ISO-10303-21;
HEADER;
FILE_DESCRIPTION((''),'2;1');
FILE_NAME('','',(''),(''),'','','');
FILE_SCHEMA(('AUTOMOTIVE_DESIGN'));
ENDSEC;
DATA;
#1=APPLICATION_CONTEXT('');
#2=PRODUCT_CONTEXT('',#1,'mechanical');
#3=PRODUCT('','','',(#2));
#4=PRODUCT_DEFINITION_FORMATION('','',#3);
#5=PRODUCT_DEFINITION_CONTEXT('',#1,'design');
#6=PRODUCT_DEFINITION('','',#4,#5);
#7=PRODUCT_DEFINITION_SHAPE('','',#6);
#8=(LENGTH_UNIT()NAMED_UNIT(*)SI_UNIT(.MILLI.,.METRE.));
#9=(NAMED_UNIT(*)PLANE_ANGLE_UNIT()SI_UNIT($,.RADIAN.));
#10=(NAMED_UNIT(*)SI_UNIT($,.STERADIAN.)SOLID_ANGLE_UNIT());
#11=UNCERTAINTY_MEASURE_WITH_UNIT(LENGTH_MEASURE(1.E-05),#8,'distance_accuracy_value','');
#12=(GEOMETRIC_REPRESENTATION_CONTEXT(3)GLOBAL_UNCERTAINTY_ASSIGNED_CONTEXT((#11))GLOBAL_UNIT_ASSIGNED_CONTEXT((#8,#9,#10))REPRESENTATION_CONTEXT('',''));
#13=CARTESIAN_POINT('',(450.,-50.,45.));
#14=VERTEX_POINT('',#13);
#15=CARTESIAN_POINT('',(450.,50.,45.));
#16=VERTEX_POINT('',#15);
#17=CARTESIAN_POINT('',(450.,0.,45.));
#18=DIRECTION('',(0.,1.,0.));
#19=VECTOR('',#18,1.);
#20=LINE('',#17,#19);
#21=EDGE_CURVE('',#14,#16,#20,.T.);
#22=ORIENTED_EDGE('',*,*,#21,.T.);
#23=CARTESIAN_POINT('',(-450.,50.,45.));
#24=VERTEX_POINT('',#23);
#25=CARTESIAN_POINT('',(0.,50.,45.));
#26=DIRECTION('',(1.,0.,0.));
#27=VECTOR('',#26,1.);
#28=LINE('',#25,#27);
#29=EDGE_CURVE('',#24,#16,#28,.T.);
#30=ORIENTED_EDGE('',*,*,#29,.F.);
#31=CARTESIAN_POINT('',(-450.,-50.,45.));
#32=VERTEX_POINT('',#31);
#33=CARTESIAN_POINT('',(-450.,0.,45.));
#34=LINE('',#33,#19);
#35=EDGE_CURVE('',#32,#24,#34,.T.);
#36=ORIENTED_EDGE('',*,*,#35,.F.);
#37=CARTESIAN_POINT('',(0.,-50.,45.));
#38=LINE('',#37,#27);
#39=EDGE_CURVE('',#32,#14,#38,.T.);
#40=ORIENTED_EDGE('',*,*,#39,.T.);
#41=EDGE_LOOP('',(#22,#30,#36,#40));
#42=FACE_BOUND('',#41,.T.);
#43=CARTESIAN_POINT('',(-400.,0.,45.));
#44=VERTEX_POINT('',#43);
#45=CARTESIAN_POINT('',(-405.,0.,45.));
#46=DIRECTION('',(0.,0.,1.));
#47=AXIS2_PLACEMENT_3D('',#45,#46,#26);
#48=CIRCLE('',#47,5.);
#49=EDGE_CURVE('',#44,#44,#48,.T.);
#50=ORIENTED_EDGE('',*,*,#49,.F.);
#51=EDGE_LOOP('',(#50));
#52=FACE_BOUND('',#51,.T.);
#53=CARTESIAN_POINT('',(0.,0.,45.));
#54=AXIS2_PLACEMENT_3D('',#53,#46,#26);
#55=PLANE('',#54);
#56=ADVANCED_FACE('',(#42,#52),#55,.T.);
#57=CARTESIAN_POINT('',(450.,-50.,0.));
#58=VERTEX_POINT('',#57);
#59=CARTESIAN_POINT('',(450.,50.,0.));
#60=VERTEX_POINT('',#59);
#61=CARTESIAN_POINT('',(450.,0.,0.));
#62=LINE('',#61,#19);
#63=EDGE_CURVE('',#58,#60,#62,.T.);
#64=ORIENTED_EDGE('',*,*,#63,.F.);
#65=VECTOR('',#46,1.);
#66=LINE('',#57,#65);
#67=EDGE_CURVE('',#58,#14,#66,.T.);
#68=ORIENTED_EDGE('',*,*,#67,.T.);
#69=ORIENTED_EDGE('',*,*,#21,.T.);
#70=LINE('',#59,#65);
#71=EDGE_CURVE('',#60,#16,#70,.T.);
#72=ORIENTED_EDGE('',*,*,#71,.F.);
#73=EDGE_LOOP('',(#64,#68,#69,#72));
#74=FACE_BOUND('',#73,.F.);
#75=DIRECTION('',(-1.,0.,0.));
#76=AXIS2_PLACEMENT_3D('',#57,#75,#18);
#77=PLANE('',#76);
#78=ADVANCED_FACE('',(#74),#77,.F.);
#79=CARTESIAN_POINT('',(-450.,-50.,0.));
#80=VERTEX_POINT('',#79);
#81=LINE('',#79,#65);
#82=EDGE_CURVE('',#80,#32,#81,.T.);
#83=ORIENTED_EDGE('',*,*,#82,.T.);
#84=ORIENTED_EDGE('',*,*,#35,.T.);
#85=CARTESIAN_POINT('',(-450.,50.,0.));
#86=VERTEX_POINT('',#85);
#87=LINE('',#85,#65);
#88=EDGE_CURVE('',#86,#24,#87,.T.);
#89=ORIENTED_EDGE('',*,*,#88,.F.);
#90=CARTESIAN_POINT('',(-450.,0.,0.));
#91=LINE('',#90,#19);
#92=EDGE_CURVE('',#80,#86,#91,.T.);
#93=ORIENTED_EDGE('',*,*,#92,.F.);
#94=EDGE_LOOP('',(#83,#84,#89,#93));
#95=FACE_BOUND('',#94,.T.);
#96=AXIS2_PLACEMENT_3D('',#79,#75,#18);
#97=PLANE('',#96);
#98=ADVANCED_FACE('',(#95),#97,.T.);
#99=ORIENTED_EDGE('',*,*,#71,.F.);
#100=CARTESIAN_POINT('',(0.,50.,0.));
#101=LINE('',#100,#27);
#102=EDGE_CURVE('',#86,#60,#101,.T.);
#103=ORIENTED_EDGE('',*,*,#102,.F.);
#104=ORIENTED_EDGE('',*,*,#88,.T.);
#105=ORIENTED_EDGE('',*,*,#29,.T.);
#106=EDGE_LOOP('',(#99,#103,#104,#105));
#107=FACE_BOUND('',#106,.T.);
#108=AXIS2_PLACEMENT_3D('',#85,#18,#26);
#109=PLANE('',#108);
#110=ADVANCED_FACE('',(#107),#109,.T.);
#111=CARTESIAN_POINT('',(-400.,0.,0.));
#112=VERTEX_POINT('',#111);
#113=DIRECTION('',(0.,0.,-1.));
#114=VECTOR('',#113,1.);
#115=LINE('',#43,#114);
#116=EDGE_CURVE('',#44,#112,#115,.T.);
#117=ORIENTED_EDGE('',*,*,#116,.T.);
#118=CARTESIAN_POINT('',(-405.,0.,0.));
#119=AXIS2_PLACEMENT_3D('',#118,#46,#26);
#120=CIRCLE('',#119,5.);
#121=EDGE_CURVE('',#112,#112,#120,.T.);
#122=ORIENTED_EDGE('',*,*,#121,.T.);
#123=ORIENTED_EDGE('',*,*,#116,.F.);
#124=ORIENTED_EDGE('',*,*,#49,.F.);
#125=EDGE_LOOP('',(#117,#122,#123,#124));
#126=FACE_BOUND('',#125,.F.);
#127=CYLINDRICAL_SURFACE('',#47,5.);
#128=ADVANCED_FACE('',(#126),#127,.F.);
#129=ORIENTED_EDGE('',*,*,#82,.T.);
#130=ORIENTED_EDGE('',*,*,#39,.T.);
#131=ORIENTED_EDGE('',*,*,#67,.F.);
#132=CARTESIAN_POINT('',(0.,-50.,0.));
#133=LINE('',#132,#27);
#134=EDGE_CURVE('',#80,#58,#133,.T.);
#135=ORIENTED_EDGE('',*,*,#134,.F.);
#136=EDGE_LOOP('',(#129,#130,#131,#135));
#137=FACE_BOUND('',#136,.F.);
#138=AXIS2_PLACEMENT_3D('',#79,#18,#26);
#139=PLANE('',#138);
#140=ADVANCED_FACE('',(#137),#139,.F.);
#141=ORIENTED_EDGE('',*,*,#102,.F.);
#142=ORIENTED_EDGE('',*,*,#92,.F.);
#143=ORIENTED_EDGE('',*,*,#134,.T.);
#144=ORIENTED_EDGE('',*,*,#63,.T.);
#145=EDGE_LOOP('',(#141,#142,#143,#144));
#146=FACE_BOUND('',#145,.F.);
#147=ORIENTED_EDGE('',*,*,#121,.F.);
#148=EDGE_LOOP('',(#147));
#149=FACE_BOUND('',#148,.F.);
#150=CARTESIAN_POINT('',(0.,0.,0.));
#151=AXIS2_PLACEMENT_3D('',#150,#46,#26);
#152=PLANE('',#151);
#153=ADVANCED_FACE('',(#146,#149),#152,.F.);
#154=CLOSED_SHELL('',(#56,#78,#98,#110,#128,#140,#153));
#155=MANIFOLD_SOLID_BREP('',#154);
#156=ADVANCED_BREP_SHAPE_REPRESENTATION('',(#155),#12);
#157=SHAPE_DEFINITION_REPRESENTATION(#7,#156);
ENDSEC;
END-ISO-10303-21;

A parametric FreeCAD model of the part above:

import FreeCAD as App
import Part
import Sketcher
from FreeCAD import Vector


def add_polygon(sketch, points):
    """Adds a closed chain of lines whose ends are joined by coincident constraints."""
    first, n = sketch.GeometryCount, len(points)
    for a, b in zip(points, points[1:] + points[:1]):
        sketch.addGeometry(Part.LineSegment(App.Vector(*a, 0), App.Vector(*b, 0)), False)
    for i in range(n):
        sketch.addConstraint(Sketcher.Constraint("Coincident", first + i, 2, first + (i + 1) % n, 1))

doc = App.newDocument("Part")
body = doc.addObject("PartDesign::Body", "Body")

# Sketch on XY plane
sketch1 = body.newObject("Sketcher::SketchObject", "Sketch")
sketch1.AttachmentSupport = (doc.getObject("XY_Plane"), [""])
sketch1.MapMode = "FlatFace"
add_polygon(sketch1, [(-450, 50), (-450, -50), (450, -50), (450, 50)])  # lines 0-3
sketch1.addConstraint(Sketcher.Constraint("Vertical", 0))
sketch1.addConstraint(Sketcher.Constraint("Horizontal", 1))
sketch1.addConstraint(Sketcher.Constraint("Vertical", 2))
sketch1.addConstraint(Sketcher.Constraint("Horizontal", 3))
sketch1.addConstraint(Sketcher.Constraint("Symmetric", 0, 2, 2, 2, -1, 1))
sketch1.addConstraint(Sketcher.Constraint("DistanceX", 1, 1, 1, 2, 900.0))
sketch1.addConstraint(Sketcher.Constraint("DistanceY", 0, 2, 0, 1, 100.0))
pad1 = body.newObject("PartDesign::Pad", "Pad")
pad1.Profile = sketch1
pad1.Length = 45

# Sketch on XY plane
sketch2 = body.newObject("Sketcher::SketchObject", "Sketch001")
sketch2.AttachmentSupport = (doc.getObject("XY_Plane"), [""])
sketch2.MapMode = "FlatFace"
sketch2.AttachmentOffset = App.Placement(Vector(0, 0, 45), App.Rotation())
sketch2.addGeometry(Part.Circle(Vector(-405, 0, 0), Vector(0, 0, 1), 5), False)
sketch2.addConstraint(Sketcher.Constraint("PointOnObject", 0, 3, -1))
sketch2.addConstraint(Sketcher.Constraint("Diameter", 0, 10.0))
sketch2.addConstraint(Sketcher.Constraint("DistanceX", 0, 3, -1, 1, 405.0))
pocket1 = body.newObject("PartDesign::Pocket", "Pocket")
pocket1.Profile = sketch2
pocket1.Length = 130.1

doc.recompute()
